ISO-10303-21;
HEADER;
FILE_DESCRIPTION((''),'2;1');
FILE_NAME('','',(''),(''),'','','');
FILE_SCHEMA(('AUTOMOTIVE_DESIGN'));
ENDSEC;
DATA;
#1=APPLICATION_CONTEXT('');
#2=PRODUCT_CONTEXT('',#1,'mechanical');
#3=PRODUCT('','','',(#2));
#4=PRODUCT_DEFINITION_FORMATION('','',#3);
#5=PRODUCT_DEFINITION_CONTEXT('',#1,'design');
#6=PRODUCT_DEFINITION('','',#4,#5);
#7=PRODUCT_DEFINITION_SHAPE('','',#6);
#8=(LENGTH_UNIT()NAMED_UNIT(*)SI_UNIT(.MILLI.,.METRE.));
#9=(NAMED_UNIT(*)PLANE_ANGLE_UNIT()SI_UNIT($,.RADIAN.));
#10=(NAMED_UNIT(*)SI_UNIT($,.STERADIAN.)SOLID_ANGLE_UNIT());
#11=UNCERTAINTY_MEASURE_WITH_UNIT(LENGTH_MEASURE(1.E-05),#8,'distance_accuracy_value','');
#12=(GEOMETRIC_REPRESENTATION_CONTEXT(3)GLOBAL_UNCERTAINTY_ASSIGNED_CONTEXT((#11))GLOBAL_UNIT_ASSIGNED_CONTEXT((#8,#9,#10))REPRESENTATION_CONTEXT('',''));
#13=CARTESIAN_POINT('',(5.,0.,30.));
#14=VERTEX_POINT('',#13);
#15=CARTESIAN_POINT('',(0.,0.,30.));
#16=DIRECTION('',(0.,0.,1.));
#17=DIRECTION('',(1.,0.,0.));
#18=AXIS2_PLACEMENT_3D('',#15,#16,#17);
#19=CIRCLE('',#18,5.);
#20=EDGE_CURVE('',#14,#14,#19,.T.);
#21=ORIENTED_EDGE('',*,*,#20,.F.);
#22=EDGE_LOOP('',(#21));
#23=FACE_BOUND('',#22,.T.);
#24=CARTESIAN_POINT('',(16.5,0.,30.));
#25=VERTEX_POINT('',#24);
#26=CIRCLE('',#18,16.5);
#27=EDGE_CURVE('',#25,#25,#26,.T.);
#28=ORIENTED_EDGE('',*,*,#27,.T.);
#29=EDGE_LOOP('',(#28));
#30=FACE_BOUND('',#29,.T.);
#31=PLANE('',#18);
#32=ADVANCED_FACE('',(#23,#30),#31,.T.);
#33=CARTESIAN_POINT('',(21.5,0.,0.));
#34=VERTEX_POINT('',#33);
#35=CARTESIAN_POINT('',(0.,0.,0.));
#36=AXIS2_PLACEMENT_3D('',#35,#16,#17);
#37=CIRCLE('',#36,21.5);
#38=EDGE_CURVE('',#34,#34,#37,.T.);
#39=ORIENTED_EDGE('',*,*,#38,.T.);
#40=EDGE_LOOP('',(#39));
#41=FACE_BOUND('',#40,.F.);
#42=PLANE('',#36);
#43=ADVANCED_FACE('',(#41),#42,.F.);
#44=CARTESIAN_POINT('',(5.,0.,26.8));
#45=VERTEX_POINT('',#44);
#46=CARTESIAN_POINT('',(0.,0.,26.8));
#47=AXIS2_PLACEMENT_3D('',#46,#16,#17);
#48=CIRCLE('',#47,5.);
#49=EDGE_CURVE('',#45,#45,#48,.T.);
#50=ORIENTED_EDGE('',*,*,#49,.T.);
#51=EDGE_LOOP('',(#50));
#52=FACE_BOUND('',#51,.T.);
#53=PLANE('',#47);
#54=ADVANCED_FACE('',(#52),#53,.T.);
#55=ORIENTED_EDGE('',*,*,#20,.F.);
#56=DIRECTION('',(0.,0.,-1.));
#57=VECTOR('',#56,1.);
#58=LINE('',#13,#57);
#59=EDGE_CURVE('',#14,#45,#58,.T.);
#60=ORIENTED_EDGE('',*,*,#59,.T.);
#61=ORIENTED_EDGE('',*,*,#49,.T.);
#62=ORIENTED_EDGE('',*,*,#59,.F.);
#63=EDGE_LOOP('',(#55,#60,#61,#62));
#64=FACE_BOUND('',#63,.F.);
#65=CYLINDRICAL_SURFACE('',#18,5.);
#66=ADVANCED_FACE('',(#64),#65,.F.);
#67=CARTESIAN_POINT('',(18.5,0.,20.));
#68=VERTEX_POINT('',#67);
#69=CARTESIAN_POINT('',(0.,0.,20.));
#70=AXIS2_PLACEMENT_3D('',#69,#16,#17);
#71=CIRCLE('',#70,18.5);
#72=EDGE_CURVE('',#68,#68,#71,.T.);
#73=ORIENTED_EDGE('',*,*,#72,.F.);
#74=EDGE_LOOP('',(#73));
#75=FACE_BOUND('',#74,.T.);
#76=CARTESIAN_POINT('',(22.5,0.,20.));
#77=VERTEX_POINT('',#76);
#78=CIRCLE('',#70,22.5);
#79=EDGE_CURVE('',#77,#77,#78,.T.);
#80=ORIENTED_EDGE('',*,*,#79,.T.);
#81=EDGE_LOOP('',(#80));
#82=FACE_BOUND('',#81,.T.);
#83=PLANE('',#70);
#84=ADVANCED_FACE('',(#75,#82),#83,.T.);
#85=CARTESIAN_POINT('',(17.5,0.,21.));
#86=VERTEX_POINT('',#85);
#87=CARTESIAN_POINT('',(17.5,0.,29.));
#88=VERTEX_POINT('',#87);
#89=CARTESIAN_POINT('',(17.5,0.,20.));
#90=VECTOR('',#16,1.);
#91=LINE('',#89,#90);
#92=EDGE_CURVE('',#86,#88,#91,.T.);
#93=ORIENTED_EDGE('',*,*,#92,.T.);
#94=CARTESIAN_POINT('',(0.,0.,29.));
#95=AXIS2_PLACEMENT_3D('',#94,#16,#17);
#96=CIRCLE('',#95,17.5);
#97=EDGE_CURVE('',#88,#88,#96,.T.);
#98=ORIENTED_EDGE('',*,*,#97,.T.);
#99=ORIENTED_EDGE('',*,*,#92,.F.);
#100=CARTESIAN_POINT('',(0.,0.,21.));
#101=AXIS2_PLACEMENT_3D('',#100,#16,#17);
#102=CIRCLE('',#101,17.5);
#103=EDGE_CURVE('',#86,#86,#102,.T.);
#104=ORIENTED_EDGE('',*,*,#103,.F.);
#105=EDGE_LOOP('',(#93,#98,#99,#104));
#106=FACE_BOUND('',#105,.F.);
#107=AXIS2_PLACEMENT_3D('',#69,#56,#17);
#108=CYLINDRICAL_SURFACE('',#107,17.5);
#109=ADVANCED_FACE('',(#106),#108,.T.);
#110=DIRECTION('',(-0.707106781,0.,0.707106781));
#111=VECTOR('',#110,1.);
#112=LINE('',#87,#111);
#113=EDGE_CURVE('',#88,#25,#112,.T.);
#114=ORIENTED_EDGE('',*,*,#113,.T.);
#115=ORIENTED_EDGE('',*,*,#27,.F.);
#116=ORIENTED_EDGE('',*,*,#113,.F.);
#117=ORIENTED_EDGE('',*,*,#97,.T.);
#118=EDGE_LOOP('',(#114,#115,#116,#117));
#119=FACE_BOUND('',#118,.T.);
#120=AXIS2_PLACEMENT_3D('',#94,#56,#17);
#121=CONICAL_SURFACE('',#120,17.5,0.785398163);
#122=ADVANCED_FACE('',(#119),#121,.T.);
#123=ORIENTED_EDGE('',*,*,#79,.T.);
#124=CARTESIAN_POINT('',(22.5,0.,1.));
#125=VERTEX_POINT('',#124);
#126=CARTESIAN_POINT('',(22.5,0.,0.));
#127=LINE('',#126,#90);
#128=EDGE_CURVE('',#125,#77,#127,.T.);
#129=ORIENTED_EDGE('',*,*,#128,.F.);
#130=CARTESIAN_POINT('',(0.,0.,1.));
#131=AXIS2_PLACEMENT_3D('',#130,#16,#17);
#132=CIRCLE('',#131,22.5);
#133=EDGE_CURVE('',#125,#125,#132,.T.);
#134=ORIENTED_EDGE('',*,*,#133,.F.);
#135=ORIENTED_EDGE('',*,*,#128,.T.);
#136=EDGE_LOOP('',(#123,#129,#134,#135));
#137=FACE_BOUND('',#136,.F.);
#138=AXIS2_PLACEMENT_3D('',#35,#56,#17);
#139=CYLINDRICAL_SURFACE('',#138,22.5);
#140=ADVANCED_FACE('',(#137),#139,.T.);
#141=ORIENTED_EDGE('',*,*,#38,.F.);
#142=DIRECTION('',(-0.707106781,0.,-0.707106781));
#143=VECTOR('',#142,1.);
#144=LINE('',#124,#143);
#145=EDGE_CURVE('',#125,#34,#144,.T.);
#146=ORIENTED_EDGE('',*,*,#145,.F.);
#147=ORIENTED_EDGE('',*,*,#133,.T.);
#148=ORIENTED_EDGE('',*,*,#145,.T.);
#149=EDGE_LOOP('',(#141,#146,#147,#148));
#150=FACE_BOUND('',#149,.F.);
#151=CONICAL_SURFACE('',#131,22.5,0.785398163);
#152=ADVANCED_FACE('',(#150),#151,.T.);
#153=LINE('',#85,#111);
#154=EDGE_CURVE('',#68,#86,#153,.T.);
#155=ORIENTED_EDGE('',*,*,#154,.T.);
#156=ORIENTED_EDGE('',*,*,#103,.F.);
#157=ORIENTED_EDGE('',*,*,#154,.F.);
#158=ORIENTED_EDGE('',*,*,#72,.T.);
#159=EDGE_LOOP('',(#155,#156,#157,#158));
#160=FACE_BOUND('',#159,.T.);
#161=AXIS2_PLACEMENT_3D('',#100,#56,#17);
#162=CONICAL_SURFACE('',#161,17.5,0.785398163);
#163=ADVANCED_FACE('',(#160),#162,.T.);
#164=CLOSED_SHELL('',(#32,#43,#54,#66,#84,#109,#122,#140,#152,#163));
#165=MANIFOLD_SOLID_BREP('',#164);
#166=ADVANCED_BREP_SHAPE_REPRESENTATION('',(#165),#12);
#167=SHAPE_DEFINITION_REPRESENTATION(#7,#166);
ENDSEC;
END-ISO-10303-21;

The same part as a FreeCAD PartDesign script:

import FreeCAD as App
import Part
import Sketcher
Q = App.Units.Quantity


def edges_at(feature, points):
    """Names of the edges that pass closest to the given points."""
    edges = feature.Shape.Edges
    near = lambda p: min(range(len(edges)), key=lambda i: edges[i].distToShape(Part.Vertex(*p))[0])
    return sorted({f"Edge{near(p) + 1}" for p in points})

doc = App.newDocument("Part")
body = doc.addObject("PartDesign::Body", "Body")

# Sketch on XY plane
sketch1 = doc.addObject("Sketcher::SketchObject", "Sketch")
body.addObject(sketch1)
sketch1.AttachmentSupport = (doc.XY_Plane, [""])
sketch1.MapMode = "FlatFace"
sketch1.addGeometry(Part.Circle(App.Vector(0, 0, 0), App.Vector(0, 0, 1), 22.5), False)
sketch1.addConstraint([
    Sketcher.Constraint("Coincident", 0, 3, -1, 1),
    Sketcher.Constraint("Diameter", 0, Q("45 mm")),
])
pad1 = doc.addObject("PartDesign::Pad", "Pad")
body.addObject(pad1)
pad1.Profile = sketch1
pad1.Length = 20

# Sketch on XY plane
sketch2 = doc.addObject("Sketcher::SketchObject", "Sketch001")
body.addObject(sketch2)
sketch2.AttachmentSupport = (doc.XY_Plane, [""])
sketch2.MapMode = "FlatFace"
sketch2.AttachmentOffset = App.Placement(App.Vector(0, 0, 20), App.Rotation())
sketch2.addGeometry(Part.Circle(App.Vector(0, 0, 0), App.Vector(0, 0, 1), 17.5), False)
sketch2.addConstraint([
    Sketcher.Constraint("Coincident", 0, 3, -1, 1),
    Sketcher.Constraint("Diameter", 0, Q("35 mm")),
])
pad2 = doc.addObject("PartDesign::Pad", "Pad001")
body.addObject(pad2)
pad2.Profile = sketch2
pad2.Length = 10
doc.recompute()

chamfer = doc.addObject("PartDesign::Chamfer", "Chamfer")
body.addObject(chamfer)
chamfer.Base = (pad2, edges_at(pad2, [(-17.5, 0, 20)]))
chamfer.Size = 1
doc.recompute()

chamfer2 = doc.addObject("PartDesign::Chamfer", "Chamfer001")
body.addObject(chamfer2)
chamfer2.Base = (chamfer, edges_at(chamfer, [(-17.5, 0, 30)]))
chamfer2.Size = 1
doc.recompute()

chamfer3 = doc.addObject("PartDesign::Chamfer", "Chamfer002")
body.addObject(chamfer3)
chamfer3.Base = (chamfer2, edges_at(chamfer2, [(-22.5, 0, 0)]))
chamfer3.Size = 1

# Sketch on XY plane
sketch3 = doc.addObject("Sketcher::SketchObject", "Sketch002")
body.addObject(sketch3)
sketch3.AttachmentSupport = (doc.XY_Plane, [""])
sketch3.MapMode = "FlatFace"
sketch3.AttachmentOffset = App.Placement(App.Vector(0, 0, 30), App.Rotation())
sketch3.addGeometry(Part.Circle(App.Vector(0, 0, 0), App.Vector(0, 0, 1), 5), False)
sketch3.addConstraint([
    Sketcher.Constraint("Coincident", 0, 3, -1, 1),
    Sketcher.Constraint("Diameter", 0, Q("10 mm")),
])
pocket1 = doc.addObject("PartDesign::Pocket", "Pocket")
body.addObject(pocket1)
pocket1.Profile = sketch3
pocket1.Length = 3.2

doc.recompute()
